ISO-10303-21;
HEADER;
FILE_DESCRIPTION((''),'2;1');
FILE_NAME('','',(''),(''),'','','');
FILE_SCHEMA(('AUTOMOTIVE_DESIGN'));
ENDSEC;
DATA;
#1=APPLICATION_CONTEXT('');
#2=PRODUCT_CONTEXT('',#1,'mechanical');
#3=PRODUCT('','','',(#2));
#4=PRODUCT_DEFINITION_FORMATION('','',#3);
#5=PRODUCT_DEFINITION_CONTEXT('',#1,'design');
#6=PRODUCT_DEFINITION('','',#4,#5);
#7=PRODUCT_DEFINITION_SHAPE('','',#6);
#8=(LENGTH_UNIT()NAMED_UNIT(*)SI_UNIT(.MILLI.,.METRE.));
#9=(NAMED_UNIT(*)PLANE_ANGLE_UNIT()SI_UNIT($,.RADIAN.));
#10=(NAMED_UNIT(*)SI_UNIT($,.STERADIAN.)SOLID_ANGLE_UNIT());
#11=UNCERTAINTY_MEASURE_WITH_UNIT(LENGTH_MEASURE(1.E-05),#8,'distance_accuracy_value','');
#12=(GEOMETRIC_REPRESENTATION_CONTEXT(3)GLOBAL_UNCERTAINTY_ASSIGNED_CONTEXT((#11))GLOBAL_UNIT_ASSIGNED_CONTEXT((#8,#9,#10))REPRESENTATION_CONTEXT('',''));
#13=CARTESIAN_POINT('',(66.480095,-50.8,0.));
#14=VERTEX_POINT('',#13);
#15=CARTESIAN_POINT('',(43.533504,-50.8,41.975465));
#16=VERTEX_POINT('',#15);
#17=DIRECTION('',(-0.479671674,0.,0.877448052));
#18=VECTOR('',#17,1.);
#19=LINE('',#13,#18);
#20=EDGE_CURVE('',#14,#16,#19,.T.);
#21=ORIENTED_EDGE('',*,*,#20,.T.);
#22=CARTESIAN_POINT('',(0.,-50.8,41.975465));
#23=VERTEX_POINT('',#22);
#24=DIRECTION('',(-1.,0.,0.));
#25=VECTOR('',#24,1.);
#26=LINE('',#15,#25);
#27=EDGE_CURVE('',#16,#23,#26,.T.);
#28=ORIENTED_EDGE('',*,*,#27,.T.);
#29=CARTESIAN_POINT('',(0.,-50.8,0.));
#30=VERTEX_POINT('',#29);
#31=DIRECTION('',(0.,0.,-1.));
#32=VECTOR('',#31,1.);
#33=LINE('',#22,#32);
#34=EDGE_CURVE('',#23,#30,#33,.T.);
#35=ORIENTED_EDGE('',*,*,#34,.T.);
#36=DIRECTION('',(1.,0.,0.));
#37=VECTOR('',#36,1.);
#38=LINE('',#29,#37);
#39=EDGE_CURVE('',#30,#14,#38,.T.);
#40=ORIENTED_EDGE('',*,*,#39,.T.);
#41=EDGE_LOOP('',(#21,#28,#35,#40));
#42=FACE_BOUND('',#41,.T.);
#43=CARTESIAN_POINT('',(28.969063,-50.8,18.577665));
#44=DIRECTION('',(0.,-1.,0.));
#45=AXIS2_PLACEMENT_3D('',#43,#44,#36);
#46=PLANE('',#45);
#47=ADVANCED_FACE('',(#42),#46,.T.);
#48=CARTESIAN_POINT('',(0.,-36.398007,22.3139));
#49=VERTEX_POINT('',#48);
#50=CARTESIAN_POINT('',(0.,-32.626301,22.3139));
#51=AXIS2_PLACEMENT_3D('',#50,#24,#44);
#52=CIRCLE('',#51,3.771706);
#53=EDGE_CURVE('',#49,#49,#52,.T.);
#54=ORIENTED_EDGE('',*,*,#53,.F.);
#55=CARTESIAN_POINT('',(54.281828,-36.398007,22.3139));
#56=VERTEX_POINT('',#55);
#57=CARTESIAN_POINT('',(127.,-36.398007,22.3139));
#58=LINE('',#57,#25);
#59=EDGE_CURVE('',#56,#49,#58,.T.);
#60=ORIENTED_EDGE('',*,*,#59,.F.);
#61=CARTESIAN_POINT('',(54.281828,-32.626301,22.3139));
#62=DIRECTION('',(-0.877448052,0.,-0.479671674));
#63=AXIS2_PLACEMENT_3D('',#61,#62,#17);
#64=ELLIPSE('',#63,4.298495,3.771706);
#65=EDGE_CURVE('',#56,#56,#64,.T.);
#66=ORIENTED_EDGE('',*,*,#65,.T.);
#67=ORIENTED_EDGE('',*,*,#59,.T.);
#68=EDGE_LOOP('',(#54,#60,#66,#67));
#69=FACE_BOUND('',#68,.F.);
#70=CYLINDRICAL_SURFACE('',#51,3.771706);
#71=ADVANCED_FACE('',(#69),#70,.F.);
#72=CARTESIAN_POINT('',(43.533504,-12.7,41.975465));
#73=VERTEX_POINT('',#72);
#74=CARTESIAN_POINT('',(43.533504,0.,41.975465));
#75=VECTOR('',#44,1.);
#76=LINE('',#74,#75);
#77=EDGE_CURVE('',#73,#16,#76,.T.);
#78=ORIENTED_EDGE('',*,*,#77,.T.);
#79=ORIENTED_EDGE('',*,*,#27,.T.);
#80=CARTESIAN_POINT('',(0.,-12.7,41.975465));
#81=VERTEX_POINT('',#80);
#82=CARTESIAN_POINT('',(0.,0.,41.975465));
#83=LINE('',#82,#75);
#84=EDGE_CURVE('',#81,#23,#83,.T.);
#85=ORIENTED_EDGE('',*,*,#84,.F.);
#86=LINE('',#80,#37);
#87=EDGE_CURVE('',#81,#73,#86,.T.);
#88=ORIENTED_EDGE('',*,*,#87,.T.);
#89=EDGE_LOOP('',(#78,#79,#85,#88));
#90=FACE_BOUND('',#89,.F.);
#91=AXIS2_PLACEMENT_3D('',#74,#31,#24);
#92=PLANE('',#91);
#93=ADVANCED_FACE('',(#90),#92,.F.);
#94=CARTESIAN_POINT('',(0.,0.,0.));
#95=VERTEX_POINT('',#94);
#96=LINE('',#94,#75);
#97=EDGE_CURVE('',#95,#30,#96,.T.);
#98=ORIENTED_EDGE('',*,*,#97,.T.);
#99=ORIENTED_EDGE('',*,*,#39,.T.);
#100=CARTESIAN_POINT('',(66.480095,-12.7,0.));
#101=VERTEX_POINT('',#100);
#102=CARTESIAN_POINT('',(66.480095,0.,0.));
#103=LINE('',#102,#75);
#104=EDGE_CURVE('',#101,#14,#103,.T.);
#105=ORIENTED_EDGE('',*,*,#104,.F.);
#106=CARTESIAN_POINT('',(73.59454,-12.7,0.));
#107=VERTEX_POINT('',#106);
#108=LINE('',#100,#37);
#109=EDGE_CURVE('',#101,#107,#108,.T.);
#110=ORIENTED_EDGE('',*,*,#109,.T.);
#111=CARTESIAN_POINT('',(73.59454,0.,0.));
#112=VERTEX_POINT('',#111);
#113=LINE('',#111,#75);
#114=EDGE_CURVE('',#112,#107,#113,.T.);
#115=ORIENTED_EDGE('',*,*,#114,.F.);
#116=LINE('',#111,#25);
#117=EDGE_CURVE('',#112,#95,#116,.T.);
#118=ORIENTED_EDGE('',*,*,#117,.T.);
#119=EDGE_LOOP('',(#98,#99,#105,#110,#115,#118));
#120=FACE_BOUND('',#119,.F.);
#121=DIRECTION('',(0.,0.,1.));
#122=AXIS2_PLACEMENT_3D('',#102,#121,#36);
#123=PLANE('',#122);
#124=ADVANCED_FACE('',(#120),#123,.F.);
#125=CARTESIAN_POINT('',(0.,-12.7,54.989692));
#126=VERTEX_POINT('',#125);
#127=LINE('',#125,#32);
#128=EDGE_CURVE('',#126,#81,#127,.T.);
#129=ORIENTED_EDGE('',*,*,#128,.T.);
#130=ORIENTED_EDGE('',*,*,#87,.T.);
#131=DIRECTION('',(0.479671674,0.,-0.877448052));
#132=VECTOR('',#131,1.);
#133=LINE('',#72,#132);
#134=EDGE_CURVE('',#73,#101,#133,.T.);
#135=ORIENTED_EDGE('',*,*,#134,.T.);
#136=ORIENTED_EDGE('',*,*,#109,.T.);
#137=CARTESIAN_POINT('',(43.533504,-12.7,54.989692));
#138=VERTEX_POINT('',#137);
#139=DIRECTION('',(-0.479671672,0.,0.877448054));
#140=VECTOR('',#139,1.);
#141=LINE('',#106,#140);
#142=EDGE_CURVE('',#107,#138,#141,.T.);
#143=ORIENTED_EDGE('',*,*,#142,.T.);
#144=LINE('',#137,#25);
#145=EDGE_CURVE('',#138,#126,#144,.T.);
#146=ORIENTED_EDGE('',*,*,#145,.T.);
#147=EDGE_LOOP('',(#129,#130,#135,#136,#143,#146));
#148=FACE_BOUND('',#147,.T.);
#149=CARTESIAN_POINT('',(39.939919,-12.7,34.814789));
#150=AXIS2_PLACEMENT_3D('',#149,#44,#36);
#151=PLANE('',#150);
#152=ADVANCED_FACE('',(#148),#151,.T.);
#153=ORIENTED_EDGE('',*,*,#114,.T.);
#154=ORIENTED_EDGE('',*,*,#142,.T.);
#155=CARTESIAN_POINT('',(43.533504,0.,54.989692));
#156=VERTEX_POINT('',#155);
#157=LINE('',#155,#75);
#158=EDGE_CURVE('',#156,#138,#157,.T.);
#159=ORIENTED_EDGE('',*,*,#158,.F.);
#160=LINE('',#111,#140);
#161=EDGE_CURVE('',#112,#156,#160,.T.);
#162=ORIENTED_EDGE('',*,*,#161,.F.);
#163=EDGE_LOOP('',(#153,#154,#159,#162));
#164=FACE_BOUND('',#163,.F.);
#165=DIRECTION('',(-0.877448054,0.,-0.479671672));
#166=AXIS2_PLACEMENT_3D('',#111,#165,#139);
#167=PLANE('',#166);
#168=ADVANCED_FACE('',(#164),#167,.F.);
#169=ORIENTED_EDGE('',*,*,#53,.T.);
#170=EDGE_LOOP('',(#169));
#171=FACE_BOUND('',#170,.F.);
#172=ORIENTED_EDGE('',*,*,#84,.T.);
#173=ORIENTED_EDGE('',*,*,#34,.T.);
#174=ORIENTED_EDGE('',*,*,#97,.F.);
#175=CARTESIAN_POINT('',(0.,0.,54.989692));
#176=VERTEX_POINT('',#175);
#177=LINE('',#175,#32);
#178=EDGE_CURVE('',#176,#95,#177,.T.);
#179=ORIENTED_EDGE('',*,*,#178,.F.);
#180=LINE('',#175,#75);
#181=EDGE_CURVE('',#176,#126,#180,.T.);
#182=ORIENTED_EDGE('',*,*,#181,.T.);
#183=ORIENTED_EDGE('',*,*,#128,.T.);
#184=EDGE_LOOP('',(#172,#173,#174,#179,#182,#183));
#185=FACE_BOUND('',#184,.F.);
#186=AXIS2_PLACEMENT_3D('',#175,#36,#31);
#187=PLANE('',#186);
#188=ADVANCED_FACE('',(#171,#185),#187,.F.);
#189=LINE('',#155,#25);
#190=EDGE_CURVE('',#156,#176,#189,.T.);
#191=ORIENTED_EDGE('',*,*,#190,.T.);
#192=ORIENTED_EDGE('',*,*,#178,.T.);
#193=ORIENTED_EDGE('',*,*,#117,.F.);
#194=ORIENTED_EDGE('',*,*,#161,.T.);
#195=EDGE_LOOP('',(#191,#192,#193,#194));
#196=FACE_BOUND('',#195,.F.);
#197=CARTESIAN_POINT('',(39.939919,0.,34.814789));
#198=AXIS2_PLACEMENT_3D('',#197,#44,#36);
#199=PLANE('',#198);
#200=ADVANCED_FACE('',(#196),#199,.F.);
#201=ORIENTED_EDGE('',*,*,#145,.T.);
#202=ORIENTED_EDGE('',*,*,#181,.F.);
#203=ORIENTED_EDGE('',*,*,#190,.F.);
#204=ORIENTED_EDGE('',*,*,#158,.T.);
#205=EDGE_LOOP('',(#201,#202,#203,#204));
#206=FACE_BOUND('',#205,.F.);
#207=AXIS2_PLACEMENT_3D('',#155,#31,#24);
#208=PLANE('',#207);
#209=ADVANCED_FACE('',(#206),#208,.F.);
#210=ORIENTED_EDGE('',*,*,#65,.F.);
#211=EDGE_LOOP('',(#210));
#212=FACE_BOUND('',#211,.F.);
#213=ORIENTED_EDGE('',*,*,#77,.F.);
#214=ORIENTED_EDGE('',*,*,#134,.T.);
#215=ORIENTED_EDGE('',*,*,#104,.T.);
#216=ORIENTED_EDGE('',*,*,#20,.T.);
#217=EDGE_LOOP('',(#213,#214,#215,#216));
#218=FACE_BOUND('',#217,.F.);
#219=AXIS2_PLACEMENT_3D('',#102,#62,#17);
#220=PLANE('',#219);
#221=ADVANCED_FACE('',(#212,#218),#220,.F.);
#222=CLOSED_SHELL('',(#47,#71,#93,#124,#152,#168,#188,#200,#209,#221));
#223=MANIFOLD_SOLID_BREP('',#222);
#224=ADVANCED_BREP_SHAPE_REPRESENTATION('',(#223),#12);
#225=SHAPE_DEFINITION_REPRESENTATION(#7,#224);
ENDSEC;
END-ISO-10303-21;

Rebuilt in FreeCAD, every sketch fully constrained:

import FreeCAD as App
import Part
import Sketcher
from FreeCAD import Vector
Q = App.Units.Quantity

doc = App.newDocument("Part")
params = doc.addObject("Spreadsheet::Sheet", "Params")
for row, (alias, value) in enumerate([
    ("pad1_length", "2 in"),
    ("pad2_length", "0.5 in"),
    ("pocket1_length", "10 in"),
], start=1):
    params.set(f"A{row}", alias)
    params.set(f"B{row}", "=" + value)
    params.setAlias(f"B{row}", alias)

body = doc.addObject("PartDesign::Body", "Body")

sketch1 = doc.addObject("Sketcher::SketchObject", "Sketch")
body.addObject(sketch1)
sketch1.AttachmentSupport = (doc.XZ_Plane, [""])
sketch1.MapMode = "FlatFace"
sketch1.addGeometry([
    Part.LineSegment(Vector(44, 42, 0), Vector(0, 42, 0)),
    Part.LineSegment(Vector(0, 42, 0), Vector(0, 0, 0)),
    Part.LineSegment(Vector(0, 0, 0), Vector(66, 0, 0)),
    Part.LineSegment(Vector(66, 0, 0), Vector(44, 42, 0)),
], False)
sketch1.addConstraint([
    Sketcher.Constraint("Coincident", 0, 2, 1, 1),
    Sketcher.Constraint("Coincident", 1, 2, 2, 1),
    Sketcher.Constraint("Coincident", 2, 2, 3, 1),
    Sketcher.Constraint("Coincident", 3, 2, 0, 1),
    Sketcher.Constraint("Horizontal", 0),
    Sketcher.Constraint("Vertical", 1),
    Sketcher.Constraint("Horizontal", 2),
    Sketcher.Constraint("Coincident", 1, 2, -1, 1),
    Sketcher.Constraint("Distance", 3, 47.83812),
    Sketcher.Constraint("DistanceX", 0, 2, 0, 1, 43.533504),
    Sketcher.Constraint("DistanceX", 2, 1, 2, 2, 66.480095),
])
pad1 = doc.addObject("PartDesign::Pad", "Pad")
body.addObject(pad1)
pad1.Profile = sketch1
pad1.setExpression("Length", "Params.pad1_length")

sketch2 = doc.addObject("Sketcher::SketchObject", "Sketch001")
body.addObject(sketch2)
sketch2.AttachmentSupport = (doc.XZ_Plane, [""])
sketch2.MapMode = "FlatFace"
sketch2.addGeometry([
    Part.LineSegment(Vector(44, 55, 0), Vector(0, 55, 0)),
    Part.LineSegment(Vector(0, 55, 0), Vector(0, 42, 0)),
    Part.LineSegment(Vector(0, 42, 0), Vector(44, 42, 0)),
    Part.LineSegment(Vector(44, 42, 0), Vector(66, 0, 0)),
    Part.LineSegment(Vector(66, 0, 0), Vector(74, 0, 0)),
    Part.LineSegment(Vector(74, 0, 0), Vector(44, 55, 0)),
], False)
sketch2.addConstraint([
    Sketcher.Constraint("Coincident", 0, 2, 1, 1),
    Sketcher.Constraint("Coincident", 1, 2, 2, 1),
    Sketcher.Constraint("Coincident", 2, 2, 3, 1),
    Sketcher.Constraint("Coincident", 3, 2, 4, 1),
    Sketcher.Constraint("Coincident", 4, 2, 5, 1),
    Sketcher.Constraint("Coincident", 5, 2, 0, 1),
    Sketcher.Constraint("Horizontal", 0),
    Sketcher.Constraint("Vertical", 1),
    Sketcher.Constraint("Horizontal", 2),
    Sketcher.Constraint("Horizontal", 4),
    Sketcher.Constraint("PointOnObject", 0, 2, -2),
    Sketcher.Constraint("PointOnObject", 3, 2, -1),
    Sketcher.Constraint("Parallel", 3, 5),
    Sketcher.Constraint("Vertical", 2, 2, 5, 2),
    Sketcher.Constraint("Distance", 3, 47.83812),
    Sketcher.Constraint("DistanceX", 0, 2, 0, 1, 43.533504),
    Sketcher.Constraint("DistanceX", 4, 1, 4, 2, 7.114445),
    Sketcher.Constraint("DistanceY", 1, 2, 1, 1, 13.014227),
])
pad2 = doc.addObject("PartDesign::Pad", "Pad001")
body.addObject(pad2)
pad2.Profile = sketch2
pad2.setExpression("Length", "Params.pad2_length")

sketch3 = doc.addObject("Sketcher::SketchObject", "Sketch002")
body.addObject(sketch3)
sketch3.AttachmentSupport = (doc.YZ_Plane, [""])
sketch3.MapMode = "FlatFace"
sketch3.addGeometry(Part.Circle(Vector(-32.6, 22.3, 0), Vector(0, 0, 1), 3.8), False)
sketch3.addConstraint([
    Sketcher.Constraint("Diameter", 0, 7.543412),
    Sketcher.Constraint("DistanceX", 0, 3, -1, 1, Q("1.2845 in")),
    Sketcher.Constraint("DistanceY", -1, 1, 0, 3, Q("0.8785 in")),
])
pocket1 = doc.addObject("PartDesign::Pocket", "Pocket")
body.addObject(pocket1)
pocket1.Profile = sketch3
pocket1.setExpression("Length", "Params.pocket1_length")
pocket1.Midplane = True

doc.recompute()
